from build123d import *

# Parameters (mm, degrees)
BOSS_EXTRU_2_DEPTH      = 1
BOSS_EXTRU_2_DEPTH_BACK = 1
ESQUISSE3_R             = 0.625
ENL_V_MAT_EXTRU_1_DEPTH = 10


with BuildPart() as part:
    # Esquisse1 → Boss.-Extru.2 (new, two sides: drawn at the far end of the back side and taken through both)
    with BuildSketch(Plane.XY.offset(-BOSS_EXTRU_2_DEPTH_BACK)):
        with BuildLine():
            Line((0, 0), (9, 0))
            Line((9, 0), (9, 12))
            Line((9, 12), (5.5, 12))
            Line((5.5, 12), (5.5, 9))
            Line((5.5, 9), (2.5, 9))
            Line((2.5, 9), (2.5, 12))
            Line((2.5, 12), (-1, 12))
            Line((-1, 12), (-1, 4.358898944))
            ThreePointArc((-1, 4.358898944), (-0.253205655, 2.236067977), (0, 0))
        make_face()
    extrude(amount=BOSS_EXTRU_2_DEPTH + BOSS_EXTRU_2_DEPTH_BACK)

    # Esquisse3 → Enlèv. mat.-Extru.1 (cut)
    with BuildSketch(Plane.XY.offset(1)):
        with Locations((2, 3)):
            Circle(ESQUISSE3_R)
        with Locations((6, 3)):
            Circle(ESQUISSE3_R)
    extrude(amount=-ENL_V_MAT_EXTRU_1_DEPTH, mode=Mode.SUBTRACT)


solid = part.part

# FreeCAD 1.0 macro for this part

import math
import FreeCAD as App
import Part
import Sketcher
from FreeCAD import Vector
Q = App.Units.Quantity

doc = App.newDocument("Part")
params = doc.addObject("Spreadsheet::Sheet", "Params")
for row, (alias, value) in enumerate([
    ("sketch1_radius", "10 mm"),
    ("sketch1_width", "9 mm"),
    ("sketch1_width2", "3 mm"),
    ("sketch1_height", "12 mm"),
    ("sketch1_width3", "3.5 mm"),
    ("pad1_length", "1 mm"),
    ("pad1_length2", "1 mm"),
    ("sketch2_diameter", "1.25 mm"),
    ("pocket1_length", "10 mm"),
], start=1):
    params.set(f"A{row}", alias)
    params.set(f"B{row}", "=" + value)
    params.setAlias(f"B{row}", alias)

body = doc.addObject("PartDesign::Body", "Body")

sketch1 = body.newObject("Sketcher::SketchObject", "Sketch")
sketch1.AttachmentSupport = (doc.getObject("XY_Plane"), [""])
sketch1.MapMode = "FlatFace"
sketch1.addGeometry([
    Part.LineSegment(Vector(0, 0, 0), Vector(9, 0, 0)),
    Part.LineSegment(Vector(9, 0, 0), Vector(9, 12, 0)),
    Part.LineSegment(Vector(9, 12, 0), Vector(5.5, 12, 0)),
    Part.LineSegment(Vector(5.5, 12, 0), Vector(5.5, 9, 0)),
    Part.LineSegment(Vector(5.5, 9, 0), Vector(2.5, 9, 0)),
    Part.LineSegment(Vector(2.5, 9, 0), Vector(2.5, 12, 0)),
    Part.LineSegment(Vector(2.5, 12, 0), Vector(-1, 12, 0)),
    Part.LineSegment(Vector(-1, 12, 0), Vector(-1, 4.4, 0)),
    Part.ArcOfCircle(Part.Circle(Vector(-10, 0, 0), Vector(0, 0, 1), 10), math.radians(0), math.radians(26)),
], False)
sketch1.addConstraint([
    Sketcher.Constraint("Coincident", 0, 2, 1, 1),
    Sketcher.Constraint("Coincident", 1, 2, 2, 1),
    Sketcher.Constraint("Coincident", 2, 2, 3, 1),
    Sketcher.Constraint("Coincident", 3, 2, 4, 1),
    Sketcher.Constraint("Coincident", 4, 2, 5, 1),
    Sketcher.Constraint("Coincident", 5, 2, 6, 1),
    Sketcher.Constraint("Coincident", 6, 2, 7, 1),
    Sketcher.Constraint("Coincident", 7, 2, 8, 2),
    Sketcher.Constraint("Coincident", 8, 1, 0, 1),
    Sketcher.Constraint("Horizontal", 0),
    Sketcher.Constraint("Vertical", 1),
    Sketcher.Constraint("Horizontal", 2),
    Sketcher.Constraint("Vertical", 3),
    Sketcher.Constraint("Horizontal", 4),
    Sketcher.Constraint("Vertical", 5),
    Sketcher.Constraint("Horizontal", 6),
    Sketcher.Constraint("Vertical", 7),
    Sketcher.Constraint("Coincident", 8, 1, -1, 1),
    Sketcher.Constraint("PointOnObject", 8, 3, -1),
    Sketcher.Constraint("Horizontal", 2, 2, 5, 2),
    Sketcher.Constraint("Equal", 2, 6),
    Sketcher.Constraint("Equal", 4, 3),
    Sketcher.Constraint("Radius", 8, Q("10 mm")),
    Sketcher.Constraint("DistanceX", 0, 1, 0, 2, Q("9 mm")),
    Sketcher.Constraint("DistanceX", 4, 2, 4, 1, Q("3 mm")),
    Sketcher.Constraint("DistanceY", 1, 1, 1, 2, Q("12 mm")),
    Sketcher.Constraint("DistanceX", 2, 2, 2, 1, Q("3.5 mm")),
])
sketch1.setExpression("Constraints[22]", "Params.sketch1_radius")
sketch1.setExpression("Constraints[23]", "Params.sketch1_width")
sketch1.setExpression("Constraints[24]", "Params.sketch1_width2")
sketch1.setExpression("Constraints[25]", "Params.sketch1_height")
sketch1.setExpression("Constraints[26]", "Params.sketch1_width3")
pad1 = body.newObject("PartDesign::Pad", "Pad")
pad1.Profile = sketch1
pad1.Type = "TwoLengths"
pad1.setExpression("Length", "Params.pad1_length")
pad1.setExpression("Length2", "Params.pad1_length2")

sketch2 = body.newObject("Sketcher::SketchObject", "Sketch001")
sketch2.AttachmentSupport = (doc.getObject("XY_Plane"), [""])
sketch2.MapMode = "FlatFace"
sketch2.AttachmentOffset = App.Placement(Vector(0, 0, 1), App.Rotation())
sketch2.addGeometry([
    Part.Circle(Vector(2, 3, 0), Vector(0, 0, 1), 0.6),
    Part.Circle(Vector(6, 3, 0), Vector(0, 0, 1), 0.6),
], False)
sketch2.addConstraint([
    Sketcher.Constraint("Equal", 0, 1),
    Sketcher.Constraint("Horizontal", 0, 3, 1, 3),
    Sketcher.Constraint("Diameter", 0, Q("1.25 mm")),
    Sketcher.Constraint("DistanceX", -1, 1, 0, 3, Q("2 mm")),
    Sketcher.Constraint("DistanceY", -1, 1, 0, 3, Q("3 mm")),
    Sketcher.Constraint("DistanceX", -1, 1, 1, 3, Q("6 mm")),
])
sketch2.setExpression("Constraints[2]", "Params.sketch2_diameter")
pocket1 = body.newObject("PartDesign::Pocket", "Pocket")
pocket1.Profile = sketch2
pocket1.setExpression("Length", "Params.pocket1_length")

doc.recompute()
